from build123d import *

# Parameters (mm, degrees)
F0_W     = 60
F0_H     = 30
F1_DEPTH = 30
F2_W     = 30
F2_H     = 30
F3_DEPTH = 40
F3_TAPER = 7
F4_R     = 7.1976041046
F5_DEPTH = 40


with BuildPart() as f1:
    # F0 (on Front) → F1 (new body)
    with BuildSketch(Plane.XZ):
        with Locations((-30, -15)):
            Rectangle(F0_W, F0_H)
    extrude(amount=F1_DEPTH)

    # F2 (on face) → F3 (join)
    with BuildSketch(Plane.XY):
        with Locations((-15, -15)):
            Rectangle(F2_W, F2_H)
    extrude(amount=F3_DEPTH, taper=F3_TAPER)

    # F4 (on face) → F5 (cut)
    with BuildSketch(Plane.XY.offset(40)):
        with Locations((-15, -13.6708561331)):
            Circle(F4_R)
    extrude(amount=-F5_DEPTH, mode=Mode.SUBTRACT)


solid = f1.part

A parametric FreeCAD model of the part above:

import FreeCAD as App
import Part
import Sketcher
from FreeCAD import Vector

doc = App.newDocument("Part")
body = doc.addObject("PartDesign::Body", "Body")

sketch1 = body.newObject("Sketcher::SketchObject", "Sketch")
sketch1.AttachmentSupport = (doc.getObject("XZ_Plane"), [""])
sketch1.MapMode = "FlatFace"
sketch1.addGeometry([
    Part.LineSegment(Vector(-60, 0, 0), Vector(-60, -30, 0)),
    Part.LineSegment(Vector(-60, -30, 0), Vector(0, -30, 0)),
    Part.LineSegment(Vector(0, -30, 0), Vector(0, 0, 0)),
    Part.LineSegment(Vector(0, 0, 0), Vector(-60, 0, 0)),
], False)
sketch1.addConstraint([
    Sketcher.Constraint("Coincident", 0, 2, 1, 1),
    Sketcher.Constraint("Coincident", 1, 2, 2, 1),
    Sketcher.Constraint("Coincident", 2, 2, 3, 1),
    Sketcher.Constraint("Coincident", 3, 2, 0, 1),
    Sketcher.Constraint("Vertical", 0),
    Sketcher.Constraint("Horizontal", 1),
    Sketcher.Constraint("Vertical", 2),
    Sketcher.Constraint("Horizontal", 3),
    Sketcher.Constraint("Coincident", 2, 2, -1, 1),
    Sketcher.Constraint("DistanceX", 1, 1, 1, 2, 60.0),
    Sketcher.Constraint("DistanceY", 0, 2, 0, 1, 30.0),
])
pad1 = body.newObject("PartDesign::Pad", "Pad")
pad1.Profile = sketch1
pad1.Length = 30

sketch2 = body.newObject("Sketcher::SketchObject", "Sketch001")
sketch2.AttachmentSupport = (doc.getObject("XY_Plane"), [""])
sketch2.MapMode = "FlatFace"
sketch2.addGeometry([
    Part.LineSegment(Vector(-30, 0, 0), Vector(-30, -30, 0)),
    Part.LineSegment(Vector(-30, -30, 0), Vector(0, -30, 0)),
    Part.LineSegment(Vector(0, -30, 0), Vector(0, 0, 0)),
    Part.LineSegment(Vector(0, 0, 0), Vector(-30, 0, 0)),
], False)
sketch2.addConstraint([
    Sketcher.Constraint("Coincident", 0, 2, 1, 1),
    Sketcher.Constraint("Coincident", 1, 2, 2, 1),
    Sketcher.Constraint("Coincident", 2, 2, 3, 1),
    Sketcher.Constraint("Coincident", 3, 2, 0, 1),
    Sketcher.Constraint("Vertical", 0),
    Sketcher.Constraint("Horizontal", 1),
    Sketcher.Constraint("Vertical", 2),
    Sketcher.Constraint("Horizontal", 3),
    Sketcher.Constraint("Coincident", 2, 2, -1, 1),
    Sketcher.Constraint("Equal", 3, 0),
    Sketcher.Constraint("DistanceX", 1, 1, 1, 2, 30.0),
])
pad2 = body.newObject("PartDesign::Pad", "Pad001")
pad2.Profile = sketch2
pad2.Length = 40
pad2.TaperAngle = -7

sketch3 = body.newObject("Sketcher::SketchObject", "Sketch002")
sketch3.AttachmentSupport = (doc.getObject("XY_Plane"), [""])
sketch3.MapMode = "FlatFace"
sketch3.AttachmentOffset = App.Placement(Vector(0, 0, 40), App.Rotation())
sketch3.addGeometry(Part.Circle(Vector(-15, -14, 0), Vector(0, 0, 1), 7), False)
sketch3.addConstraint([
    Sketcher.Constraint("DistanceX", 0, 3, -1, 1, 15.0),
    Sketcher.Constraint("Diameter", 0, 14.395208),
    Sketcher.Constraint("DistanceY", 0, 3, -1, 1, 13.670856),
])
pocket1 = body.newObject("PartDesign::Pocket", "Pocket")
pocket1.Profile = sketch3
pocket1.Length = 40

doc.recompute()
